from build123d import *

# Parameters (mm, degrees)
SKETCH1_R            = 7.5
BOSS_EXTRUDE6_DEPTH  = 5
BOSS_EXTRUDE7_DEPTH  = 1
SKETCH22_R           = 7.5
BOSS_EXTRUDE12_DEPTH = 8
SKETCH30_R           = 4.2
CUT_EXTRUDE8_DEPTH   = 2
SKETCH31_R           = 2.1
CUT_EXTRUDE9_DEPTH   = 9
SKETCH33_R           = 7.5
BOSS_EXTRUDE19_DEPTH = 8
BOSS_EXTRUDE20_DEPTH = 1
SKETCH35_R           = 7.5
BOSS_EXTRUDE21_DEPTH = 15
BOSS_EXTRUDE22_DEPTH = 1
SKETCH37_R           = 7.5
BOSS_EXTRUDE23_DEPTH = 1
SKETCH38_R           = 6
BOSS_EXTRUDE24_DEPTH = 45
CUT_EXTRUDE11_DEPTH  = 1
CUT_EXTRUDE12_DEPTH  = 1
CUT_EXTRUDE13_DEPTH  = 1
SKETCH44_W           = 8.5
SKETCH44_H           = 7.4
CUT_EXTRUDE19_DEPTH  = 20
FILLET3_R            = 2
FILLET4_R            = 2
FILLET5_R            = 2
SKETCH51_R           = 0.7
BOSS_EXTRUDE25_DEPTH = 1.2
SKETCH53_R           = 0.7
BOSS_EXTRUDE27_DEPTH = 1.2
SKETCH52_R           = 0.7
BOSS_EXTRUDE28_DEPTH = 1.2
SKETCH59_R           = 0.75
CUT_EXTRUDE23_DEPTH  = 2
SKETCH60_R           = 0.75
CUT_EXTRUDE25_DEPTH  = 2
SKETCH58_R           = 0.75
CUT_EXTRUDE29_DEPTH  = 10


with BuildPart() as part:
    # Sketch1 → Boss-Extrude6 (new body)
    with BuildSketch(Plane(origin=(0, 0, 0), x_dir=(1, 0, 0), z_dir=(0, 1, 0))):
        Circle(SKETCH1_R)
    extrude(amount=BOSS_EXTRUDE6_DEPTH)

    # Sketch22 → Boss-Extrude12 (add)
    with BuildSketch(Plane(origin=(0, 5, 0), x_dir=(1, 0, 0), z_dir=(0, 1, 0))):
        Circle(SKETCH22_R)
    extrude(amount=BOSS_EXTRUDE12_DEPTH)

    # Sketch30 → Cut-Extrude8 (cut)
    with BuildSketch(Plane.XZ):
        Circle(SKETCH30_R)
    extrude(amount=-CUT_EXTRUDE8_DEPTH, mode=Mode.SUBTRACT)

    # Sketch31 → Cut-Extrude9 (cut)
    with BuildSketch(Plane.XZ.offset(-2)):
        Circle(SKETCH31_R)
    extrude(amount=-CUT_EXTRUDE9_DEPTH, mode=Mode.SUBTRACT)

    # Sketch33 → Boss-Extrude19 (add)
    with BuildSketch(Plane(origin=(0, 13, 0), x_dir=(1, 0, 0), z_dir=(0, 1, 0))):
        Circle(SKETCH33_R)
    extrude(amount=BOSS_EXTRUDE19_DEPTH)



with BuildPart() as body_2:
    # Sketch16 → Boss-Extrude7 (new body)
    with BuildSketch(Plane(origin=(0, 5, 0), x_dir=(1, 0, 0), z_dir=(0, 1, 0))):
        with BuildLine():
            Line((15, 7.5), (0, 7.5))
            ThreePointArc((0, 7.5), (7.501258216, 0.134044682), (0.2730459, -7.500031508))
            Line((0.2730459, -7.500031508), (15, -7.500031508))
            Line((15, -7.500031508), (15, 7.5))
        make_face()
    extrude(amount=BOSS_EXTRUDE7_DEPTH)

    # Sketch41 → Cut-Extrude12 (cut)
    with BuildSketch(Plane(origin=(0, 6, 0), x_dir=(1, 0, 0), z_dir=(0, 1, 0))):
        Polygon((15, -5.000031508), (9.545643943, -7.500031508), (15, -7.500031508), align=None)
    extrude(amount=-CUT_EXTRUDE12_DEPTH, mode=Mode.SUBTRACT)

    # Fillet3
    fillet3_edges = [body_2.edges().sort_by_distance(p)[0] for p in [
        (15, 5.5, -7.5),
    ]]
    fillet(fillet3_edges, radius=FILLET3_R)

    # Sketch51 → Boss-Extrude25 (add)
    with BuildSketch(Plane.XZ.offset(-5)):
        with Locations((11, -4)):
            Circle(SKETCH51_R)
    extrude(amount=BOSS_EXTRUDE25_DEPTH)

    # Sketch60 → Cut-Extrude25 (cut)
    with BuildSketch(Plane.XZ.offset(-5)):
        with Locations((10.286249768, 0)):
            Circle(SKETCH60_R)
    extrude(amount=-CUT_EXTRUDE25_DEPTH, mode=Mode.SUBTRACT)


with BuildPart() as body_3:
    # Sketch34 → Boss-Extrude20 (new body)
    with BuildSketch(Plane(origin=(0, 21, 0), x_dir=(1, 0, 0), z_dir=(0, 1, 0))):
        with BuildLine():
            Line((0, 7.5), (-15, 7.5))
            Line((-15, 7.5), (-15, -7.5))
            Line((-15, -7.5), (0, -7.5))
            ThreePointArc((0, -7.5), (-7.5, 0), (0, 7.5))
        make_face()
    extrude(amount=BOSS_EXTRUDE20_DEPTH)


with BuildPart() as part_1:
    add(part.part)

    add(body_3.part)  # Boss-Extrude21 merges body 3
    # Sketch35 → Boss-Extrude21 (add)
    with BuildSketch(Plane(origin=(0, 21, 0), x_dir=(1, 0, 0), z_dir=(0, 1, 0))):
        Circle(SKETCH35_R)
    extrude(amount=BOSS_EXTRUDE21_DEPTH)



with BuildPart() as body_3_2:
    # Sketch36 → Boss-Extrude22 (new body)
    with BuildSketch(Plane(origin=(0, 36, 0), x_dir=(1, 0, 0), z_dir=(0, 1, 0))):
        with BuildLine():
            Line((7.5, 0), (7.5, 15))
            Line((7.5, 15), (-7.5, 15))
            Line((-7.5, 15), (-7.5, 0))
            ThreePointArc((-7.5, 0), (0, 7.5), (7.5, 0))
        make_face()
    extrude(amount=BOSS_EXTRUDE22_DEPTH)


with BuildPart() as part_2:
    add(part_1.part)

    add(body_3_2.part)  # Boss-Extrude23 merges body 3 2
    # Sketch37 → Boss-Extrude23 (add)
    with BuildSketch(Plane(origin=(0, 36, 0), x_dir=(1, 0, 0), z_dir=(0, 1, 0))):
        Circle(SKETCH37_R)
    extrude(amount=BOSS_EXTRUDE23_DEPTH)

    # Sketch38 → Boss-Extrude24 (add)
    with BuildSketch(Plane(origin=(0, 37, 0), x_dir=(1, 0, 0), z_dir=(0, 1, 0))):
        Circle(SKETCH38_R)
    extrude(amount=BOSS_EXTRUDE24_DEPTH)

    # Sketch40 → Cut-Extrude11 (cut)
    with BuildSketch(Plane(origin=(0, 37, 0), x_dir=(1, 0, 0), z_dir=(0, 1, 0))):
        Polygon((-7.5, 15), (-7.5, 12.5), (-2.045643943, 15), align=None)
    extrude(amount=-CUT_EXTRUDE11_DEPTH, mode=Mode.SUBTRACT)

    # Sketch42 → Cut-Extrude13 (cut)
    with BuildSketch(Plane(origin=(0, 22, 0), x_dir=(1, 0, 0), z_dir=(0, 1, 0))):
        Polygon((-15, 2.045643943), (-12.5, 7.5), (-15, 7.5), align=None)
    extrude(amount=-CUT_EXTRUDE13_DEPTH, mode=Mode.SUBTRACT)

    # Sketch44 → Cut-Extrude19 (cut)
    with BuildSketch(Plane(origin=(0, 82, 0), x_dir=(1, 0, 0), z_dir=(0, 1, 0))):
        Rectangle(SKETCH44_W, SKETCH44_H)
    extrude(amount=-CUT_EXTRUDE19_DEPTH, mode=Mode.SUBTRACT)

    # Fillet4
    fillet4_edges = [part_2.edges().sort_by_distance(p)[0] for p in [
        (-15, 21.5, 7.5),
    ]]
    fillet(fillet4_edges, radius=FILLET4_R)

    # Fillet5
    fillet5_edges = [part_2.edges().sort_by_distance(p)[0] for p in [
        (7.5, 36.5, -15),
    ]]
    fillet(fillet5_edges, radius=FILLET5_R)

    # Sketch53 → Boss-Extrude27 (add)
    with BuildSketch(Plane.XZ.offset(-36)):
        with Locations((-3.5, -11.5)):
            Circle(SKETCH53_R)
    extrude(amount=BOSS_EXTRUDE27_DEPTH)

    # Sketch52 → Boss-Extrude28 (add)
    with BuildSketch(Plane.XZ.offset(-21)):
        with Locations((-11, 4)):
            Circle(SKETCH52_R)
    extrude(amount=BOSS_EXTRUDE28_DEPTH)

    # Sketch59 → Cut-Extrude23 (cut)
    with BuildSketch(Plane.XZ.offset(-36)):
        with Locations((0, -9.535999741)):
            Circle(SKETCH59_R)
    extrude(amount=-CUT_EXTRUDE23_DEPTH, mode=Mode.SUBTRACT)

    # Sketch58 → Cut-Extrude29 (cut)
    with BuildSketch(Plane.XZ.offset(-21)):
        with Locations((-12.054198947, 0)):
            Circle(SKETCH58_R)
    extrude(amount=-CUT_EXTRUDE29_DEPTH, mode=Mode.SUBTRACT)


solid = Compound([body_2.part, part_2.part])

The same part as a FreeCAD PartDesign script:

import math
import FreeCAD as App
import Part
import Sketcher
from FreeCAD import Vector


def edges_at(feature, points):
    """Names of the edges that pass closest to the given points."""
    edges = feature.Shape.Edges
    near = lambda p: min(range(len(edges)), key=lambda i: edges[i].distToShape(Part.Vertex(*p))[0])
    return sorted({f"Edge{near(p) + 1}" for p in points})


def add_polygon(sketch, points):
    """Adds a closed chain of lines whose ends are joined by coincident constraints."""
    first, n = sketch.GeometryCount, len(points)
    for a, b in zip(points, points[1:] + points[:1]):
        sketch.addGeometry(Part.LineSegment(App.Vector(*a, 0), App.Vector(*b, 0)), False)
    for i in range(n):
        sketch.addConstraint(Sketcher.Constraint("Coincident", first + i, 2, first + (i + 1) % n, 1))

doc = App.newDocument("Part")
body = doc.addObject("PartDesign::Body", "Body")

# Sketch on XZ plane
sketch1 = doc.addObject("Sketcher::SketchObject", "Sketch")
body.addObject(sketch1)
sketch1.AttachmentSupport = (doc.XZ_Plane, [""])
sketch1.MapMode = "FlatFace"
sketch1.addGeometry(Part.Circle(Vector(0, 0, 0), Vector(0, 0, 1), 7.5), False)
sketch1.addConstraint(Sketcher.Constraint("Coincident", 0, 3, -1, 1))
sketch1.addConstraint(Sketcher.Constraint("Diameter", 0, 15.0))
pad1 = doc.addObject("PartDesign::Pad", "Pad")
body.addObject(pad1)
pad1.Profile = sketch1
pad1.Length = 5
pad1.Reversed = True

# Sketch on XZ plane
sketch2 = doc.addObject("Sketcher::SketchObject", "Sketch001")
body.addObject(sketch2)
sketch2.AttachmentSupport = (doc.XZ_Plane, [""])
sketch2.MapMode = "FlatFace"
sketch2.AttachmentOffset = App.Placement(Vector(0, 0, -5), App.Rotation())
sketch2.addGeometry(Part.Circle(Vector(0, 0, 0), Vector(0, 0, 1), 7.5), False)
sketch2.addConstraint(Sketcher.Constraint("Coincident", 0, 3, -1, 1))
sketch2.addConstraint(Sketcher.Constraint("Diameter", 0, 15.0))
pad2 = doc.addObject("PartDesign::Pad", "Pad001")
body.addObject(pad2)
pad2.Profile = sketch2
pad2.Length = 8
pad2.Reversed = True

# Sketch on XZ plane
sketch3 = doc.addObject("Sketcher::SketchObject", "Sketch002")
body.addObject(sketch3)
sketch3.AttachmentSupport = (doc.XZ_Plane, [""])
sketch3.MapMode = "FlatFace"
sketch3.addGeometry(Part.Circle(Vector(0, 0, 0), Vector(0, 0, 1), 4.2), False)
sketch3.addConstraint(Sketcher.Constraint("Coincident", 0, 3, -1, 1))
sketch3.addConstraint(Sketcher.Constraint("Diameter", 0, 8.4))
pocket1 = doc.addObject("PartDesign::Pocket", "Pocket")
body.addObject(pocket1)
pocket1.Profile = sketch3
pocket1.Length = 2

# Sketch on XZ plane
sketch4 = doc.addObject("Sketcher::SketchObject", "Sketch003")
body.addObject(sketch4)
sketch4.AttachmentSupport = (doc.XZ_Plane, [""])
sketch4.MapMode = "FlatFace"
sketch4.AttachmentOffset = App.Placement(Vector(0, 0, -2), App.Rotation())
sketch4.addGeometry(Part.Circle(Vector(0, 0, 0), Vector(0, 0, 1), 2.1), False)
sketch4.addConstraint(Sketcher.Constraint("Coincident", 0, 3, -1, 1))
sketch4.addConstraint(Sketcher.Constraint("Diameter", 0, 4.2))
pocket2 = doc.addObject("PartDesign::Pocket", "Pocket001")
body.addObject(pocket2)
pocket2.Profile = sketch4
pocket2.Length = 9

# Sketch on XZ plane
sketch5 = doc.addObject("Sketcher::SketchObject", "Sketch004")
body.addObject(sketch5)
sketch5.AttachmentSupport = (doc.XZ_Plane, [""])
sketch5.MapMode = "FlatFace"
sketch5.AttachmentOffset = App.Placement(Vector(0, 0, -13), App.Rotation())
sketch5.addGeometry(Part.Circle(Vector(0, 0, 0), Vector(0, 0, 1), 7.5), False)
sketch5.addConstraint(Sketcher.Constraint("Coincident", 0, 3, -1, 1))
sketch5.addConstraint(Sketcher.Constraint("Diameter", 0, 15.0))
pad3 = doc.addObject("PartDesign::Pad", "Pad002")
body.addObject(pad3)
pad3.Profile = sketch5
pad3.Length = 8
pad3.Reversed = True
body2 = doc.addObject("PartDesign::Body", "Body001")

# Sketch on XZ plane
sketch6 = doc.addObject("Sketcher::SketchObject", "Sketch005")
body2.addObject(sketch6)
sketch6.AttachmentSupport = (doc.getObject("XZ_Plane001"), [""])
sketch6.MapMode = "FlatFace"
sketch6.AttachmentOffset = App.Placement(Vector(0, 0, -5), App.Rotation())
sketch6.addGeometry(Part.LineSegment(Vector(15, -7.5, 0), Vector(0, -7.5, 0)), False)
sketch6.addGeometry(Part.ArcOfCircle(Part.Circle(Vector(0, 0.002501, 0), Vector(0, 0, 1), 7.502501), math.radians(-90), math.radians(87.914318)), False)
sketch6.addGeometry(Part.LineSegment(Vector(0.273046, 7.500032, 0), Vector(15, 7.500032, 0)), False)
sketch6.addGeometry(Part.LineSegment(Vector(15, 7.500032, 0), Vector(15, -7.5, 0)), False)
sketch6.addConstraint(Sketcher.Constraint("Tangent", 0, 2, 1, 1))
sketch6.addConstraint(Sketcher.Constraint("Coincident", 1, 2, 2, 1))
sketch6.addConstraint(Sketcher.Constraint("Coincident", 2, 2, 3, 1))
sketch6.addConstraint(Sketcher.Constraint("Coincident", 3, 2, 0, 1))
sketch6.addConstraint(Sketcher.Constraint("Horizontal", 0))
sketch6.addConstraint(Sketcher.Constraint("Horizontal", 2))
sketch6.addConstraint(Sketcher.Constraint("Vertical", 3))
sketch6.addConstraint(Sketcher.Constraint("PointOnObject", 1, 3, -2))
sketch6.addConstraint(Sketcher.Constraint("DistanceX", 0, 2, 0, 1, 15.0))
sketch6.addConstraint(Sketcher.Constraint("DistanceY", 0, 2, -1, 1, 7.5))
sketch6.addConstraint(Sketcher.Constraint("Radius", 1, 7.502501))
sketch6.addConstraint(Sketcher.Constraint("DistanceY", 3, 2, 3, 1, 15.000032))
pad4 = doc.addObject("PartDesign::Pad", "Pad003")
body2.addObject(pad4)
pad4.Profile = sketch6
pad4.Length = 1
pad4.Reversed = True

# Sketch on XZ plane
sketch7 = doc.addObject("Sketcher::SketchObject", "Sketch006")
body2.addObject(sketch7)
sketch7.AttachmentSupport = (doc.getObject("XZ_Plane001"), [""])
sketch7.MapMode = "FlatFace"
sketch7.AttachmentOffset = App.Placement(Vector(0, 0, -6), App.Rotation())
add_polygon(sketch7, [(15, 5.000032), (9.545644, 7.500032), (15, 7.500032)])  # lines 0-2
sketch7.addConstraint(Sketcher.Constraint("Horizontal", 1))
sketch7.addConstraint(Sketcher.Constraint("Vertical", 2))
sketch7.addConstraint(Sketcher.Constraint("Distance", 0, 6.0))
sketch7.addConstraint(Sketcher.Constraint("DistanceY", 2, 2, 2, 1, 2.5))
sketch7.addConstraint(Sketcher.Constraint("DistanceX", -1, 1, 1, 2, 15.0))
sketch7.addConstraint(Sketcher.Constraint("DistanceY", -1, 1, 0, 2, 7.500032))
pocket3 = doc.addObject("PartDesign::Pocket", "Pocket002")
body2.addObject(pocket3)
pocket3.Profile = sketch7
pocket3.Length = 1
pocket3.Reversed = True
doc.recompute()

fillet = doc.addObject("PartDesign::Fillet", "Fillet")
body2.addObject(fillet)
fillet.Base = (pocket3, edges_at(pocket3, [(15, 5.5, -7.5)]))
fillet.Radius = 2

# Sketch on XZ plane
sketch8 = doc.addObject("Sketcher::SketchObject", "Sketch007")
body2.addObject(sketch8)
sketch8.AttachmentSupport = (doc.getObject("XZ_Plane001"), [""])
sketch8.MapMode = "FlatFace"
sketch8.AttachmentOffset = App.Placement(Vector(0, 0, -5), App.Rotation())
sketch8.addGeometry(Part.Circle(Vector(11, -4, 0), Vector(0, 0, 1), 0.7), False)
sketch8.addConstraint(Sketcher.Constraint("Diameter", 0, 1.4))
sketch8.addConstraint(Sketcher.Constraint("DistanceX", -1, 1, 0, 3, 11.0))
sketch8.addConstraint(Sketcher.Constraint("DistanceY", 0, 3, -1, 1, 4.0))
pad5 = doc.addObject("PartDesign::Pad", "Pad004")
body2.addObject(pad5)
pad5.Profile = sketch8
pad5.Length = 1.2

# Sketch on XZ plane
sketch9 = doc.addObject("Sketcher::SketchObject", "Sketch008")
body2.addObject(sketch9)
sketch9.AttachmentSupport = (doc.getObject("XZ_Plane001"), [""])
sketch9.MapMode = "FlatFace"
sketch9.AttachmentOffset = App.Placement(Vector(0, 0, -5), App.Rotation())
sketch9.addGeometry(Part.Circle(Vector(10.28625, 0, 0), Vector(0, 0, 1), 0.75), False)
sketch9.addConstraint(Sketcher.Constraint("PointOnObject", 0, 3, -1))
sketch9.addConstraint(Sketcher.Constraint("Diameter", 0, 1.5))
sketch9.addConstraint(Sketcher.Constraint("DistanceX", -1, 1, 0, 3, 10.28625))
pocket4 = doc.addObject("PartDesign::Pocket", "Pocket003")
body2.addObject(pocket4)
pocket4.Profile = sketch9
pocket4.Length = 2
body3 = doc.addObject("PartDesign::Body", "Body002")

# Sketch on XZ plane
sketch10 = doc.addObject("Sketcher::SketchObject", "Sketch009")
body3.addObject(sketch10)
sketch10.AttachmentSupport = (doc.getObject("XZ_Plane002"), [""])
sketch10.MapMode = "FlatFace"
sketch10.AttachmentOffset = App.Placement(Vector(0, 0, -21), App.Rotation())
sketch10.addGeometry(Part.LineSegment(Vector(0, -7.5, 0), Vector(-15, -7.5, 0)), False)
sketch10.addGeometry(Part.LineSegment(Vector(-15, -7.5, 0), Vector(-15, 7.5, 0)), False)
sketch10.addGeometry(Part.LineSegment(Vector(-15, 7.5, 0), Vector(0, 7.5, 0)), False)
sketch10.addGeometry(Part.ArcOfCircle(Part.Circle(Vector(0, 0, 0), Vector(0, 0, 1), 7.5), math.radians(90), math.radians(270)), False)
sketch10.addConstraint(Sketcher.Constraint("Coincident", 0, 2, 1, 1))
sketch10.addConstraint(Sketcher.Constraint("Coincident", 1, 2, 2, 1))
sketch10.addConstraint(Sketcher.Constraint("Tangent", 2, 2, 3, 1))
sketch10.addConstraint(Sketcher.Constraint("Tangent", 3, 2, 0, 1))
sketch10.addConstraint(Sketcher.Constraint("Horizontal", 0))
sketch10.addConstraint(Sketcher.Constraint("Vertical", 1))
sketch10.addConstraint(Sketcher.Constraint("Horizontal", 2))
sketch10.addConstraint(Sketcher.Constraint("Coincident", 3, 3, -1, 1))
sketch10.addConstraint(Sketcher.Constraint("Equal", 2, 1))
sketch10.addConstraint(Sketcher.Constraint("Radius", 3, 7.5))
pad6 = doc.addObject("PartDesign::Pad", "Pad005")
body3.addObject(pad6)
pad6.Profile = sketch10
pad6.Length = 1
pad6.Reversed = True
body.AllowCompound = True
doc.recompute()

boolean = doc.addObject("PartDesign::Boolean", "Boolean")
body.addObject(boolean)
boolean.Type = "Fuse"
boolean.addObjects([body3])

# Sketch on XZ plane
sketch11 = doc.addObject("Sketcher::SketchObject", "Sketch010")
body.addObject(sketch11)
sketch11.AttachmentSupport = (doc.XZ_Plane, [""])
sketch11.MapMode = "FlatFace"
sketch11.AttachmentOffset = App.Placement(Vector(0, 0, -21), App.Rotation())
sketch11.addGeometry(Part.Circle(Vector(0, 0, 0), Vector(0, 0, 1), 7.5), False)
sketch11.addConstraint(Sketcher.Constraint("Coincident", 0, 3, -1, 1))
sketch11.addConstraint(Sketcher.Constraint("Diameter", 0, 15.0))
pad7 = doc.addObject("PartDesign::Pad", "Pad006")
body.addObject(pad7)
pad7.Profile = sketch11
pad7.Length = 15
pad7.Reversed = True
body4 = doc.addObject("PartDesign::Body", "Body003")

# Sketch on XZ plane
sketch12 = doc.addObject("Sketcher::SketchObject", "Sketch011")
body4.addObject(sketch12)
sketch12.AttachmentSupport = (doc.getObject("XZ_Plane003"), [""])
sketch12.MapMode = "FlatFace"
sketch12.AttachmentOffset = App.Placement(Vector(0, 0, -36), App.Rotation())
sketch12.addGeometry(Part.LineSegment(Vector(7.5, 0, 0), Vector(7.5, -15, 0)), False)
sketch12.addGeometry(Part.LineSegment(Vector(7.5, -15, 0), Vector(-7.5, -15, 0)), False)
sketch12.addGeometry(Part.LineSegment(Vector(-7.5, -15, 0), Vector(-7.5, 0, 0)), False)
sketch12.addGeometry(Part.ArcOfCircle(Part.Circle(Vector(0, 0, 0), Vector(0, 0, 1), 7.5), math.radians(180), math.radians(360)), False)
sketch12.addConstraint(Sketcher.Constraint("Coincident", 0, 2, 1, 1))
sketch12.addConstraint(Sketcher.Constraint("Coincident", 1, 2, 2, 1))
sketch12.addConstraint(Sketcher.Constraint("Tangent", 2, 2, 3, 1))
sketch12.addConstraint(Sketcher.Constraint("Tangent", 3, 2, 0, 1))
sketch12.addConstraint(Sketcher.Constraint("Vertical", 0))
sketch12.addConstraint(Sketcher.Constraint("Horizontal", 1))
sketch12.addConstraint(Sketcher.Constraint("Vertical", 2))
sketch12.addConstraint(Sketcher.Constraint("Coincident", 3, 3, -1, 1))
sketch12.addConstraint(Sketcher.Constraint("Equal", 1, 0))
sketch12.addConstraint(Sketcher.Constraint("Radius", 3, 7.5))
pad8 = doc.addObject("PartDesign::Pad", "Pad007")
body4.addObject(pad8)
pad8.Profile = sketch12
pad8.Length = 1
pad8.Reversed = True
body.AllowCompound = True
doc.recompute()

boolean2 = doc.addObject("PartDesign::Boolean", "Boolean001")
body.addObject(boolean2)
boolean2.Type = "Fuse"
boolean2.addObjects([body4])

# Sketch on XZ plane
sketch13 = doc.addObject("Sketcher::SketchObject", "Sketch012")
body.addObject(sketch13)
sketch13.AttachmentSupport = (doc.XZ_Plane, [""])
sketch13.MapMode = "FlatFace"
sketch13.AttachmentOffset = App.Placement(Vector(0, 0, -36), App.Rotation())
sketch13.addGeometry(Part.Circle(Vector(0, 0, 0), Vector(0, 0, 1), 7.5), False)
sketch13.addConstraint(Sketcher.Constraint("Coincident", 0, 3, -1, 1))
sketch13.addConstraint(Sketcher.Constraint("Diameter", 0, 15.0))
pad9 = doc.addObject("PartDesign::Pad", "Pad008")
body.addObject(pad9)
pad9.Profile = sketch13
pad9.Length = 1
pad9.Reversed = True

# Sketch on XZ plane
sketch14 = doc.addObject("Sketcher::SketchObject", "Sketch013")
body.addObject(sketch14)
sketch14.AttachmentSupport = (doc.XZ_Plane, [""])
sketch14.MapMode = "FlatFace"
sketch14.AttachmentOffset = App.Placement(Vector(0, 0, -37), App.Rotation())
sketch14.addGeometry(Part.Circle(Vector(0, 0, 0), Vector(0, 0, 1), 6), False)
sketch14.addConstraint(Sketcher.Constraint("Coincident", 0, 3, -1, 1))
sketch14.addConstraint(Sketcher.Constraint("Diameter", 0, 12.0))
pad10 = doc.addObject("PartDesign::Pad", "Pad009")
body.addObject(pad10)
pad10.Profile = sketch14
pad10.Length = 45
pad10.Reversed = True

# Sketch on XZ plane
sketch15 = doc.addObject("Sketcher::SketchObject", "Sketch014")
body.addObject(sketch15)
sketch15.AttachmentSupport = (doc.XZ_Plane, [""])
sketch15.MapMode = "FlatFace"
sketch15.AttachmentOffset = App.Placement(Vector(0, 0, -37), App.Rotation())
add_polygon(sketch15, [(-7.5, -15), (-7.5, -12.5), (-2.045644, -15)])  # lines 0-2
sketch15.addConstraint(Sketcher.Constraint("Vertical", 0))
sketch15.addConstraint(Sketcher.Constraint("Horizontal", 2))
sketch15.addConstraint(Sketcher.Constraint("Distance", 1, 6.0))
sketch15.addConstraint(Sketcher.Constraint("DistanceY", 0, 1, 0, 2, 2.5))
sketch15.addConstraint(Sketcher.Constraint("DistanceY", 1, 2, -1, 1, 15.0))
sketch15.addConstraint(Sketcher.Constraint("DistanceX", 0, 2, -1, 1, 7.5))
pocket5 = doc.addObject("PartDesign::Pocket", "Pocket004")
body.addObject(pocket5)
pocket5.Profile = sketch15
pocket5.Length = 1
pocket5.Reversed = True

# Sketch on XZ plane
sketch16 = doc.addObject("Sketcher::SketchObject", "Sketch015")
body.addObject(sketch16)
sketch16.AttachmentSupport = (doc.XZ_Plane, [""])
sketch16.MapMode = "FlatFace"
sketch16.AttachmentOffset = App.Placement(Vector(0, 0, -22), App.Rotation())
add_polygon(sketch16, [(-15, -2.045644), (-12.5, -7.5), (-15, -7.5)])  # lines 0-2
sketch16.addConstraint(Sketcher.Constraint("Horizontal", 1))
sketch16.addConstraint(Sketcher.Constraint("Vertical", 2))
sketch16.addConstraint(Sketcher.Constraint("Distance", 0, 6.0))
sketch16.addConstraint(Sketcher.Constraint("DistanceX", 1, 2, 1, 1, 2.5))
sketch16.addConstraint(Sketcher.Constraint("DistanceX", 1, 2, -1, 1, 15.0))
sketch16.addConstraint(Sketcher.Constraint("DistanceY", 0, 2, -1, 1, 7.5))
pocket6 = doc.addObject("PartDesign::Pocket", "Pocket005")
body.addObject(pocket6)
pocket6.Profile = sketch16
pocket6.Length = 1
pocket6.Reversed = True

# Sketch on XZ plane
sketch17 = doc.addObject("Sketcher::SketchObject", "Sketch016")
body.addObject(sketch17)
sketch17.AttachmentSupport = (doc.XZ_Plane, [""])
sketch17.MapMode = "FlatFace"
sketch17.AttachmentOffset = App.Placement(Vector(0, 0, -82), App.Rotation())
add_polygon(sketch17, [(-4.25, -3.7), (-4.25, 3.7), (4.25, 3.7), (4.25, -3.7)])  # lines 0-3
sketch17.addConstraint(Sketcher.Constraint("Vertical", 0))
sketch17.addConstraint(Sketcher.Constraint("Horizontal", 1))
sketch17.addConstraint(Sketcher.Constraint("Vertical", 2))
sketch17.addConstraint(Sketcher.Constraint("Horizontal", 3))
sketch17.addConstraint(Sketcher.Constraint("Symmetric", 0, 2, 2, 2, -1, 1))
sketch17.addConstraint(Sketcher.Constraint("DistanceX", 1, 1, 1, 2, 8.5))
sketch17.addConstraint(Sketcher.Constraint("DistanceY", 0, 1, 0, 2, 7.4))
pocket7 = doc.addObject("PartDesign::Pocket", "Pocket006")
body.addObject(pocket7)
pocket7.Profile = sketch17
pocket7.Length = 20
pocket7.Reversed = True
doc.recompute()

fillet2 = doc.addObject("PartDesign::Fillet", "Fillet001")
body.addObject(fillet2)
fillet2.Base = (pocket7, edges_at(pocket7, [(-15, 21.5, 7.5)]))
fillet2.Radius = 2
doc.recompute()

fillet3 = doc.addObject("PartDesign::Fillet", "Fillet002")
body.addObject(fillet3)
fillet3.Base = (fillet2, edges_at(fillet2, [(7.5, 36.5, -15)]))
fillet3.Radius = 2

# Sketch on XZ plane
sketch18 = doc.addObject("Sketcher::SketchObject", "Sketch017")
body.addObject(sketch18)
sketch18.AttachmentSupport = (doc.XZ_Plane, [""])
sketch18.MapMode = "FlatFace"
sketch18.AttachmentOffset = App.Placement(Vector(0, 0, -36), App.Rotation())
sketch18.addGeometry(Part.Circle(Vector(-3.5, -11.5, 0), Vector(0, 0, 1), 0.7), False)
sketch18.addConstraint(Sketcher.Constraint("Diameter", 0, 1.4))
sketch18.addConstraint(Sketcher.Constraint("DistanceX", 0, 3, -1, 1, 3.5))
sketch18.addConstraint(Sketcher.Constraint("DistanceY", 0, 3, -1, 1, 11.5))
pad11 = doc.addObject("PartDesign::Pad", "Pad010")
body.addObject(pad11)
pad11.Profile = sketch18
pad11.Length = 1.2

# Sketch on XZ plane
sketch19 = doc.addObject("Sketcher::SketchObject", "Sketch018")
body.addObject(sketch19)
sketch19.AttachmentSupport = (doc.XZ_Plane, [""])
sketch19.MapMode = "FlatFace"
sketch19.AttachmentOffset = App.Placement(Vector(0, 0, -21), App.Rotation())
sketch19.addGeometry(Part.Circle(Vector(-11, 4, 0), Vector(0, 0, 1), 0.7), False)
sketch19.addConstraint(Sketcher.Constraint("Diameter", 0, 1.4))
sketch19.addConstraint(Sketcher.Constraint("DistanceX", 0, 3, -1, 1, 11.0))
sketch19.addConstraint(Sketcher.Constraint("DistanceY", -1, 1, 0, 3, 4.0))
pad12 = doc.addObject("PartDesign::Pad", "Pad011")
body.addObject(pad12)
pad12.Profile = sketch19
pad12.Length = 1.2

# Sketch on XZ plane
sketch20 = doc.addObject("Sketcher::SketchObject", "Sketch019")
body.addObject(sketch20)
sketch20.AttachmentSupport = (doc.XZ_Plane, [""])
sketch20.MapMode = "FlatFace"
sketch20.AttachmentOffset = App.Placement(Vector(0, 0, -36), App.Rotation())
sketch20.addGeometry(Part.Circle(Vector(0, -9.536, 0), Vector(0, 0, 1), 0.75), False)
sketch20.addConstraint(Sketcher.Constraint("PointOnObject", 0, 3, -2))
sketch20.addConstraint(Sketcher.Constraint("Diameter", 0, 1.5))
sketch20.addConstraint(Sketcher.Constraint("DistanceY", 0, 3, -1, 1, 9.536))
pocket8 = doc.addObject("PartDesign::Pocket", "Pocket007")
body.addObject(pocket8)
pocket8.Profile = sketch20
pocket8.Length = 2

# Sketch on XZ plane
sketch21 = doc.addObject("Sketcher::SketchObject", "Sketch020")
body.addObject(sketch21)
sketch21.AttachmentSupport = (doc.XZ_Plane, [""])
sketch21.MapMode = "FlatFace"
sketch21.AttachmentOffset = App.Placement(Vector(0, 0, -21), App.Rotation())
sketch21.addGeometry(Part.Circle(Vector(-12.054199, 0, 0), Vector(0, 0, 1), 0.75), False)
sketch21.addConstraint(Sketcher.Constraint("PointOnObject", 0, 3, -1))
sketch21.addConstraint(Sketcher.Constraint("Diameter", 0, 1.5))
sketch21.addConstraint(Sketcher.Constraint("DistanceX", 0, 3, -1, 1, 12.054199))
pocket9 = doc.addObject("PartDesign::Pocket", "Pocket008")
body.addObject(pocket9)
pocket9.Profile = sketch21
pocket9.Length = 10

doc.recompute()
